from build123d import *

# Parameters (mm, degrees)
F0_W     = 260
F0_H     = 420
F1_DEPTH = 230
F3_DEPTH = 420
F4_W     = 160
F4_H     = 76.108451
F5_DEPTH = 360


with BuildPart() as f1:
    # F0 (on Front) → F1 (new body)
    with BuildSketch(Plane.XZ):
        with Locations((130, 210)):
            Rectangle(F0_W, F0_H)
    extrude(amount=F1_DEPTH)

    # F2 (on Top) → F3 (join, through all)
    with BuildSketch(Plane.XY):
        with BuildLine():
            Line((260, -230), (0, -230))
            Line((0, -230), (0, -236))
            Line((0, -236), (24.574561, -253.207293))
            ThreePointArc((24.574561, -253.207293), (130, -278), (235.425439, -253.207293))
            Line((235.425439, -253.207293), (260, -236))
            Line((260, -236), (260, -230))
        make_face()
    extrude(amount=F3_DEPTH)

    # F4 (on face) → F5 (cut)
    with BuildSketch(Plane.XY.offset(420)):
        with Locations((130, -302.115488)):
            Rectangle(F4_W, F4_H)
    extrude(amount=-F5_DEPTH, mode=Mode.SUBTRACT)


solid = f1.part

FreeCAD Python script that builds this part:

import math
import FreeCAD as App
import Part
import Sketcher
Q = App.Units.Quantity

doc = App.newDocument("Part")
body = doc.addObject("PartDesign::Body", "Body")

# Sketch on XZ plane
sketch1 = doc.addObject("Sketcher::SketchObject", "Sketch")
body.addObject(sketch1)
sketch1.AttachmentSupport = (doc.XZ_Plane, [""])
sketch1.MapMode = "FlatFace"
sketch1.addGeometry([
    Part.LineSegment(App.Vector(0, 420, 0), App.Vector(0, 0, 0)),
    Part.LineSegment(App.Vector(0, 0, 0), App.Vector(260, 0, 0)),
    Part.LineSegment(App.Vector(260, 0, 0), App.Vector(260, 420, 0)),
    Part.LineSegment(App.Vector(260, 420, 0), App.Vector(0, 420, 0)),
], False)
sketch1.addConstraint([
    Sketcher.Constraint("Coincident", 0, 2, 1, 1),
    Sketcher.Constraint("Coincident", 1, 2, 2, 1),
    Sketcher.Constraint("Coincident", 2, 2, 3, 1),
    Sketcher.Constraint("Coincident", 3, 2, 0, 1),
    Sketcher.Constraint("Vertical", 0),
    Sketcher.Constraint("Horizontal", 1),
    Sketcher.Constraint("Vertical", 2),
    Sketcher.Constraint("Horizontal", 3),
    Sketcher.Constraint("Coincident", 0, 2, -1, 1),
    Sketcher.Constraint("DistanceX", 1, 1, 1, 2, Q("260 mm")),
    Sketcher.Constraint("DistanceY", 0, 2, 0, 1, Q("420 mm")),
])
pad1 = doc.addObject("PartDesign::Pad", "Pad")
body.addObject(pad1)
pad1.Profile = sketch1
pad1.Length = 230

# Sketch on XY plane
sketch2 = doc.addObject("Sketcher::SketchObject", "Sketch001")
body.addObject(sketch2)
sketch2.AttachmentSupport = (doc.XY_Plane, [""])
sketch2.MapMode = "FlatFace"
sketch2.addGeometry([
    Part.LineSegment(App.Vector(260, -230, 0), App.Vector(0, -230, 0)),  # 0
    Part.LineSegment(App.Vector(0, -230, 0), App.Vector(0, -236, 0)),  # 1
    Part.LineSegment(App.Vector(0, -236, 0), App.Vector(24.574561, -253.207293, 0)),  # 2
    Part.ArcOfCircle(Part.Circle(App.Vector(130, -41.454602, 0), App.Vector(0, 0, 1), 236.545398), math.radians(-116.467363), math.radians(-63.532637)),  # 3
    Part.LineSegment(App.Vector(235.425439, -253.207293, 0), App.Vector(260, -236, 0)),  # 4
    Part.LineSegment(App.Vector(260, -236, 0), App.Vector(260, -230, 0)),  # 5
], False)
sketch2.addConstraint([
    Sketcher.Constraint("Coincident", 0, 2, 1, 1),
    Sketcher.Constraint("Coincident", 1, 2, 2, 1),
    Sketcher.Constraint("Coincident", 2, 2, 3, 1),
    Sketcher.Constraint("Coincident", 3, 2, 4, 1),
    Sketcher.Constraint("Coincident", 4, 2, 5, 1),
    Sketcher.Constraint("Coincident", 5, 2, 0, 1),
    Sketcher.Constraint("Horizontal", 0),
    Sketcher.Constraint("Vertical", 1),
    Sketcher.Constraint("Vertical", 5),
    Sketcher.Constraint("PointOnObject", 0, 2, -2),
    Sketcher.Constraint("Horizontal", 2, 2, 3, 2),
    Sketcher.Constraint("Horizontal", 1, 2, 4, 2),
    Sketcher.Constraint("Equal", 2, 4),
    Sketcher.Constraint("DistanceX", 0, 2, 0, 1, Q("260 mm")),
    Sketcher.Constraint("DistanceY", 1, 2, 1, 1, Q("6 mm")),
    Sketcher.Constraint("Angle", 2, Q("-35 deg")),
    Sketcher.Constraint("Distance", 2, Q("30 mm")),
    Sketcher.Constraint("DistanceY", 0, 2, -1, 1, Q("230 mm")),
    Sketcher.Constraint("Radius", 3, Q("236.545398 mm")),
])
pad2 = doc.addObject("PartDesign::Pad", "Pad001")
body.addObject(pad2)
pad2.Profile = sketch2
pad2.Length = 420

# Sketch on XY plane
sketch3 = doc.addObject("Sketcher::SketchObject", "Sketch002")
body.addObject(sketch3)
sketch3.AttachmentSupport = (doc.XY_Plane, [""])
sketch3.MapMode = "FlatFace"
sketch3.AttachmentOffset = App.Placement(App.Vector(0, 0, 420), App.Rotation())
sketch3.addGeometry([
    Part.LineSegment(App.Vector(50, -264.061262, 0), App.Vector(50, -340.169714, 0)),
    Part.LineSegment(App.Vector(50, -340.169714, 0), App.Vector(210, -340.169714, 0)),
    Part.LineSegment(App.Vector(210, -340.169714, 0), App.Vector(210, -264.061262, 0)),
    Part.LineSegment(App.Vector(210, -264.061262, 0), App.Vector(50, -264.061262, 0)),
], False)
sketch3.addConstraint([
    Sketcher.Constraint("Coincident", 0, 2, 1, 1),
    Sketcher.Constraint("Coincident", 1, 2, 2, 1),
    Sketcher.Constraint("Coincident", 2, 2, 3, 1),
    Sketcher.Constraint("Coincident", 3, 2, 0, 1),
    Sketcher.Constraint("Vertical", 0),
    Sketcher.Constraint("Horizontal", 1),
    Sketcher.Constraint("Vertical", 2),
    Sketcher.Constraint("Horizontal", 3),
    Sketcher.Constraint("DistanceX", 1, 1, 1, 2, Q("160 mm")),
    Sketcher.Constraint("DistanceX", -1, 1, 0, 2, Q("50 mm")),
    Sketcher.Constraint("DistanceY", 0, 2, 0, 1, Q("76.108451 mm")),
    Sketcher.Constraint("DistanceY", 0, 2, -1, 1, Q("340.169714 mm")),
])
pocket1 = doc.addObject("PartDesign::Pocket", "Pocket")
body.addObject(pocket1)
pocket1.Profile = sketch3
pocket1.Length = 360

doc.recompute()
